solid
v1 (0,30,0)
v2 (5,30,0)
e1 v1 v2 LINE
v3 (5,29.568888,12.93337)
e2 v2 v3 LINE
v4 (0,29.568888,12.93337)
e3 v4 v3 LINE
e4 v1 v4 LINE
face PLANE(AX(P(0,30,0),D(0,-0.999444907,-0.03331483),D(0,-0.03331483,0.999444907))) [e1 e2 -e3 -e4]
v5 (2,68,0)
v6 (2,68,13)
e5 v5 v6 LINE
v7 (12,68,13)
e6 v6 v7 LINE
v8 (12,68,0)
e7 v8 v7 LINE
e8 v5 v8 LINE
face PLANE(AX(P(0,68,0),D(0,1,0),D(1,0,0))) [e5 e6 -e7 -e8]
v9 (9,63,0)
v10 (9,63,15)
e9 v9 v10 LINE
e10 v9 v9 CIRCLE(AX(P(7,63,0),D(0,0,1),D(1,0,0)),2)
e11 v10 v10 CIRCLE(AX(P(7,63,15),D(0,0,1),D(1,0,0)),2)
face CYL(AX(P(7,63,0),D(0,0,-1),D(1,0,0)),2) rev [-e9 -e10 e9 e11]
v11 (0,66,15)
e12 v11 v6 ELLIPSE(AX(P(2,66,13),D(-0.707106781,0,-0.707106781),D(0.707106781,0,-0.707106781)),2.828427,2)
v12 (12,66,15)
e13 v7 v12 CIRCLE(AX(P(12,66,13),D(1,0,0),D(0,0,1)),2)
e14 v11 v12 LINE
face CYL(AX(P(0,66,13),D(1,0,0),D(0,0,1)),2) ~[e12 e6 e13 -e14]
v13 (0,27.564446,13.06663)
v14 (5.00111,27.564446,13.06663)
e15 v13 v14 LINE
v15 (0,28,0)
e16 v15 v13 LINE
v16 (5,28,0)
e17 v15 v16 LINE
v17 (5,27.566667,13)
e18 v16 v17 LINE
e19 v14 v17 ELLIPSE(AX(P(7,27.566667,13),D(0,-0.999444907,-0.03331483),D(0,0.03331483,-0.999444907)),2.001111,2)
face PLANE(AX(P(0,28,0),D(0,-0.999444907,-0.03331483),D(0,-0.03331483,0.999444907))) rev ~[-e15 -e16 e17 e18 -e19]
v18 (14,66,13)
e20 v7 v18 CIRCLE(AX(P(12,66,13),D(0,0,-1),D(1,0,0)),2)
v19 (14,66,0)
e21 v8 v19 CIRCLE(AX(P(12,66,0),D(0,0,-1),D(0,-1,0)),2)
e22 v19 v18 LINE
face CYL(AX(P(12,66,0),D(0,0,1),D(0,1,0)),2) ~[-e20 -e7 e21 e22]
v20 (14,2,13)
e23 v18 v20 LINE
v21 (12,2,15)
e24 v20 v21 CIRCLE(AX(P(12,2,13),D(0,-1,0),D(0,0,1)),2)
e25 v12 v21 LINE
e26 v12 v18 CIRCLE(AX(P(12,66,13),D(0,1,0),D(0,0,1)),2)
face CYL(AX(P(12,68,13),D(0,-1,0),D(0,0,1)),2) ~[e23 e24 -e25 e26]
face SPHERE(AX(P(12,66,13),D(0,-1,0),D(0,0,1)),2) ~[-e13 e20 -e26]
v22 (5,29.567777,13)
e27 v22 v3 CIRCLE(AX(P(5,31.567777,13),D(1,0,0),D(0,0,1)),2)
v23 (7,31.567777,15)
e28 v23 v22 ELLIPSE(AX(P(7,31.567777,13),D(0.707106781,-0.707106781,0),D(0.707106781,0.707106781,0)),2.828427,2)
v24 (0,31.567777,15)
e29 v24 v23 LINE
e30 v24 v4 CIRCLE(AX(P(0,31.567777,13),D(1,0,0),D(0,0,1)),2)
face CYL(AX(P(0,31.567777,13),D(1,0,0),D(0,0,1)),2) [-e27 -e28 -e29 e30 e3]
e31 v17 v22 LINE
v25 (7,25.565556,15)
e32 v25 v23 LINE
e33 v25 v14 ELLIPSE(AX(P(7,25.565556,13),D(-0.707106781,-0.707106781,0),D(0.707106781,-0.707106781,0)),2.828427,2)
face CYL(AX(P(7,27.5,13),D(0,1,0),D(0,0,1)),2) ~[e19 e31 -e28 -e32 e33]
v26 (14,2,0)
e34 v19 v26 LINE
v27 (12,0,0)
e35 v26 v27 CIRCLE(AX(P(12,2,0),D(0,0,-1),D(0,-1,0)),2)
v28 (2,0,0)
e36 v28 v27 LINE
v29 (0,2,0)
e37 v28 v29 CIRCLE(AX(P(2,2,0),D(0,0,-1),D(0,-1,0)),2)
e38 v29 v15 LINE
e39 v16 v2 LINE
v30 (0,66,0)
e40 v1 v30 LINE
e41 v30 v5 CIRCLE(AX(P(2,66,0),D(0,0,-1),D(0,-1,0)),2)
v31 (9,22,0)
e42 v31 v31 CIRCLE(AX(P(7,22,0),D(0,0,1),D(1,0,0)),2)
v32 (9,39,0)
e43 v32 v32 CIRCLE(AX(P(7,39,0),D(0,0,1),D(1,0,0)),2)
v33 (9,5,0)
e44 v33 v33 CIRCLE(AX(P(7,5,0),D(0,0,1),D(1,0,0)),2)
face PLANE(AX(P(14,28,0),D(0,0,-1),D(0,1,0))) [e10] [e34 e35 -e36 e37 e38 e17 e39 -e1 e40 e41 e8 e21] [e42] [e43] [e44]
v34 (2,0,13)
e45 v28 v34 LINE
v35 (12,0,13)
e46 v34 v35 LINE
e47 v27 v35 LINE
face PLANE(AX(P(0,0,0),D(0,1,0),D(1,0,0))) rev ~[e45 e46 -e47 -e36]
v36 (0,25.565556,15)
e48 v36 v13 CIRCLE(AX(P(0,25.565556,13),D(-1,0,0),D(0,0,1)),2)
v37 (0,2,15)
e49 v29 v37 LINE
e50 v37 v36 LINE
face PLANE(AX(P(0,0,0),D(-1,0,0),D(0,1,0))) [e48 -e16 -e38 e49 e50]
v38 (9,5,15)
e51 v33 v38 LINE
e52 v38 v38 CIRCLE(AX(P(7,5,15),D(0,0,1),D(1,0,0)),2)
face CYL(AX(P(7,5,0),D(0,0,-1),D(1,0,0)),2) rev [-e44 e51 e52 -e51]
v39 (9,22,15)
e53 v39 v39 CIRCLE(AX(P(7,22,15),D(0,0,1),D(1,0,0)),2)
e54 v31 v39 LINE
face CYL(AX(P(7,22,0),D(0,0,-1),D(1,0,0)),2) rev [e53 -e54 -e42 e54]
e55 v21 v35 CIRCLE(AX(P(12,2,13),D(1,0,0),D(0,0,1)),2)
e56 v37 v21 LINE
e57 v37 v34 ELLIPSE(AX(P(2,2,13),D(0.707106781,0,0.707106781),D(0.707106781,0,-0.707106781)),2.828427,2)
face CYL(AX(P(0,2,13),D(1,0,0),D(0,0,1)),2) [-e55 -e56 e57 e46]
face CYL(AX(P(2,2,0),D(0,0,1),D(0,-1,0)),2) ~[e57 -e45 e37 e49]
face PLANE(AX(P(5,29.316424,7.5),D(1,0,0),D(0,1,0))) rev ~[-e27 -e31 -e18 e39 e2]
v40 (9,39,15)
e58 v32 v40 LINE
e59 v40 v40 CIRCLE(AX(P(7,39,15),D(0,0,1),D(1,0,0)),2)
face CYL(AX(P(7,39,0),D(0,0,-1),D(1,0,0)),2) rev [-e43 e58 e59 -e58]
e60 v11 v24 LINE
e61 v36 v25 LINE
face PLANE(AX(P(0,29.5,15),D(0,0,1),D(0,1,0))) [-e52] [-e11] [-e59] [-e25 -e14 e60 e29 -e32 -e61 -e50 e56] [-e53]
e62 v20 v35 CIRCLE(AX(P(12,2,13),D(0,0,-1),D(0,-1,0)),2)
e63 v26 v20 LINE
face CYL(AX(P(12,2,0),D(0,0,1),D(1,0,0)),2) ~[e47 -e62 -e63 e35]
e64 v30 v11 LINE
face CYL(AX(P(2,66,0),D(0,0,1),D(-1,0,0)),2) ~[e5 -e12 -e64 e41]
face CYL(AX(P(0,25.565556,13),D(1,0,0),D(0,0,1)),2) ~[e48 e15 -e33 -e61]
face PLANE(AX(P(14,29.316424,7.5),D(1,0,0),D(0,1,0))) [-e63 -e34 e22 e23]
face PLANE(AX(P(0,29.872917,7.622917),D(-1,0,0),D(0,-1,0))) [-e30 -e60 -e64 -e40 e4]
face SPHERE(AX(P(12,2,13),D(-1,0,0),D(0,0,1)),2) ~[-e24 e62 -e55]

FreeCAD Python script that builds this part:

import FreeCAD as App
import Part
import Sketcher

V = App.Vector
Q = App.Units.Quantity


def edges_at(feature, points):
    """Names of the edges that pass closest to the given points."""
    edges = feature.Shape.Edges
    near = lambda p: min(range(len(edges)), key=lambda i: edges[i].distToShape(Part.Vertex(*p))[0])
    return sorted({f"Edge{near(p) + 1}" for p in points})

doc = App.newDocument("Part")
body = doc.addObject("PartDesign::Body", "Body")

sketch1 = body.newObject("Sketcher::SketchObject", "Sketch")
sketch1.AttachmentSupport = (doc.getObject("XY_Plane"), [""])
sketch1.MapMode = "FlatFace"
sketch1.addGeometry([
    Part.LineSegment(V(0, 28, 0), V(0, 0, 0)),
    Part.LineSegment(V(0, 0, 0), V(14, 0, 0)),
    Part.LineSegment(V(14, 0, 0), V(14, 28, 0)),
    Part.LineSegment(V(14, 28, 0), V(0, 28, 0)),
    Part.Circle(V(7, 5, 0), V(0, 0, 1), 2),
    Part.Circle(V(7, 22, 0), V(0, 0, 1), 2),
], False)
sketch1.addConstraint([
    Sketcher.Constraint("Coincident", 0, 2, 1, 1),
    Sketcher.Constraint("Coincident", 1, 2, 2, 1),
    Sketcher.Constraint("Coincident", 2, 2, 3, 1),
    Sketcher.Constraint("Coincident", 3, 2, 0, 1),
    Sketcher.Constraint("Vertical", 0),
    Sketcher.Constraint("Horizontal", 1),
    Sketcher.Constraint("Vertical", 2),
    Sketcher.Constraint("Horizontal", 3),
    Sketcher.Constraint("Coincident", 0, 2, -1, 1),
    Sketcher.Constraint("Equal", 4, 5),
    Sketcher.Constraint("Vertical", 4, 3, 5, 3),
    Sketcher.Constraint("Diameter", 4, Q("4 mm")),
    Sketcher.Constraint("DistanceX", 1, 1, 1, 2, Q("14 mm")),
    Sketcher.Constraint("DistanceY", 0, 2, 0, 1, Q("28 mm")),
    Sketcher.Constraint("DistanceX", -1, 1, 4, 3, Q("7 mm")),
    Sketcher.Constraint("DistanceY", -1, 1, 4, 3, Q("5 mm")),
    Sketcher.Constraint("DistanceY", -1, 1, 5, 3, Q("22 mm")),
])
pad1 = body.newObject("PartDesign::Pad", "Pad")
pad1.Profile = sketch1
pad1.Length = 15
body2 = doc.addObject("PartDesign::Body", "Body001")

sketch2 = body2.newObject("Sketcher::SketchObject", "Sketch001")
sketch2.AttachmentSupport = (doc.getObject("XY_Plane001"), [""])
sketch2.MapMode = "FlatFace"
sketch2.addGeometry([
    Part.LineSegment(V(0, 68, 0), V(0, 30, 0)),
    Part.LineSegment(V(0, 30, 0), V(14, 30, 0)),
    Part.LineSegment(V(14, 30, 0), V(14, 68, 0)),
    Part.LineSegment(V(14, 68, 0), V(0, 68, 0)),
    Part.Circle(V(7, 39, 0), V(0, 0, 1), 2),
    Part.Circle(V(7, 63, 0), V(0, 0, 1), 2),
], False)
sketch2.addConstraint([
    Sketcher.Constraint("Coincident", 0, 2, 1, 1),
    Sketcher.Constraint("Coincident", 1, 2, 2, 1),
    Sketcher.Constraint("Coincident", 2, 2, 3, 1),
    Sketcher.Constraint("Coincident", 3, 2, 0, 1),
    Sketcher.Constraint("Vertical", 0),
    Sketcher.Constraint("Horizontal", 1),
    Sketcher.Constraint("Vertical", 2),
    Sketcher.Constraint("Horizontal", 3),
    Sketcher.Constraint("Equal", 4, 5),
    Sketcher.Constraint("PointOnObject", 0, 2, -2),
    Sketcher.Constraint("Vertical", 4, 3, 5, 3),
    Sketcher.Constraint("Diameter", 4, Q("4 mm")),
    Sketcher.Constraint("DistanceX", 1, 1, 1, 2, Q("14 mm")),
    Sketcher.Constraint("DistanceY", 0, 2, 0, 1, Q("38 mm")),
    Sketcher.Constraint("DistanceX", -1, 1, 4, 3, Q("7 mm")),
    Sketcher.Constraint("DistanceY", -1, 1, 4, 3, Q("39 mm")),
    Sketcher.Constraint("DistanceY", -1, 1, 5, 3, Q("63 mm")),
    Sketcher.Constraint("DistanceY", -1, 1, 0, 2, Q("30 mm")),
])
pad2 = body2.newObject("PartDesign::Pad", "Pad001")
pad2.Profile = sketch2
pad2.Length = 15
body.AllowCompound = True
doc.recompute()

boolean = body.newObject("PartDesign::Boolean", "Boolean")
boolean.Type = "Fuse"
boolean.addObjects([body2])

sketch3 = body.newObject("Sketcher::SketchObject", "Sketch002")
sketch3.AttachmentSupport = (doc.getObject("YZ_Plane"), [""])
sketch3.MapMode = "FlatFace"
sketch3.AttachmentOffset = App.Placement(V(0, 0, 14), App.Rotation())
sketch3.addGeometry([
    Part.LineSegment(V(28, 15, 0), V(28, 0, 0)),
    Part.LineSegment(V(28, 0, 0), V(30.632848, 0, 0)),
    Part.LineSegment(V(30.632848, 0, 0), V(30.632848, 15, 0)),
    Part.LineSegment(V(30.632848, 15, 0), V(28, 15, 0)),
], False)
sketch3.addConstraint([
    Sketcher.Constraint("Coincident", 0, 2, 1, 1),
    Sketcher.Constraint("Coincident", 1, 2, 2, 1),
    Sketcher.Constraint("Coincident", 2, 2, 3, 1),
    Sketcher.Constraint("Coincident", 3, 2, 0, 1),
    Sketcher.Constraint("Vertical", 0),
    Sketcher.Constraint("Horizontal", 1),
    Sketcher.Constraint("Vertical", 2),
    Sketcher.Constraint("Horizontal", 3),
    Sketcher.Constraint("PointOnObject", 0, 2, -1),
    Sketcher.Constraint("DistanceY", 0, 2, 0, 1, Q("15 mm")),
    Sketcher.Constraint("DistanceX", -1, 1, 0, 2, Q("28 mm")),
    Sketcher.Constraint("DistanceX", 1, 1, 1, 2, Q("2.632848 mm")),
])
pad3 = body.newObject("PartDesign::Pad", "Pad002")
pad3.Profile = sketch3
pad3.Length = 9
pad3.Reversed = True

sketch4 = body.newObject("Sketcher::SketchObject", "Sketch003")
sketch4.AttachmentSupport = (doc.getObject("YZ_Plane"), [""])
sketch4.MapMode = "FlatFace"
sketch4.addGeometry([
    Part.LineSegment(V(28, 15, 0), V(28, 0, 0)),
    Part.LineSegment(V(28, 0, 0), V(27.5, 15, 0)),
    Part.LineSegment(V(27.5, 15, 0), V(28, 15, 0)),
], False)
sketch4.addConstraint([
    Sketcher.Constraint("Coincident", 0, 2, 1, 1),
    Sketcher.Constraint("Coincident", 1, 2, 2, 1),
    Sketcher.Constraint("Coincident", 2, 2, 0, 1),
    Sketcher.Constraint("Vertical", 0),
    Sketcher.Constraint("Horizontal", 2),
    Sketcher.Constraint("PointOnObject", 0, 2, -1),
    Sketcher.Constraint("DistanceY", 0, 2, 0, 1, Q("15 mm")),
    Sketcher.Constraint("DistanceX", 2, 1, 2, 2, Q("0.5 mm")),
    Sketcher.Constraint("DistanceX", -1, 1, 0, 2, Q("28 mm")),
])
pocket1 = body.newObject("PartDesign::Pocket", "Pocket")
pocket1.Profile = sketch4
pocket1.Length = 5
pocket1.Reversed = True

sketch5 = body.newObject("Sketcher::SketchObject", "Sketch004")
sketch5.AttachmentSupport = (doc.getObject("YZ_Plane"), [""])
sketch5.MapMode = "FlatFace"
sketch5.addGeometry([
    Part.LineSegment(V(29.5, 15, 0), V(30, 15, 0)),
    Part.LineSegment(V(30, 15, 0), V(30, 0, 0)),
    Part.LineSegment(V(30, 0, 0), V(29.5, 15, 0)),
], False)
sketch5.addConstraint([
    Sketcher.Constraint("Coincident", 0, 2, 1, 1),
    Sketcher.Constraint("Coincident", 1, 2, 2, 1),
    Sketcher.Constraint("Coincident", 2, 2, 0, 1),
    Sketcher.Constraint("Horizontal", 0),
    Sketcher.Constraint("Vertical", 1),
    Sketcher.Constraint("PointOnObject", 1, 2, -1),
    Sketcher.Constraint("DistanceY", 1, 2, 1, 1, Q("15 mm")),
    Sketcher.Constraint("DistanceX", 0, 1, 0, 2, Q("0.5 mm")),
    Sketcher.Constraint("DistanceX", -1, 1, 0, 2, Q("30 mm")),
])
pad4 = body.newObject("PartDesign::Pad", "Pad003")
pad4.Profile = sketch5
pad4.Length = 5
doc.recompute()

fillet = body.newObject("PartDesign::Fillet", "Fillet")
fillet.Base = (pad4, edges_at(pad4, [
    (2.5, 29.5, 15),
    (5, 28.5, 15),
    (2.5, 27.5, 15),
    (7, 0, 15),
    (14, 34, 15),
    (7, 68, 15),
    (14, 0, 7.5),
    (14, 68, 7.5),
    (0, 68, 7.5),
    (0, 0, 7.5),
]))
fillet.Radius = 2

doc.recompute()
